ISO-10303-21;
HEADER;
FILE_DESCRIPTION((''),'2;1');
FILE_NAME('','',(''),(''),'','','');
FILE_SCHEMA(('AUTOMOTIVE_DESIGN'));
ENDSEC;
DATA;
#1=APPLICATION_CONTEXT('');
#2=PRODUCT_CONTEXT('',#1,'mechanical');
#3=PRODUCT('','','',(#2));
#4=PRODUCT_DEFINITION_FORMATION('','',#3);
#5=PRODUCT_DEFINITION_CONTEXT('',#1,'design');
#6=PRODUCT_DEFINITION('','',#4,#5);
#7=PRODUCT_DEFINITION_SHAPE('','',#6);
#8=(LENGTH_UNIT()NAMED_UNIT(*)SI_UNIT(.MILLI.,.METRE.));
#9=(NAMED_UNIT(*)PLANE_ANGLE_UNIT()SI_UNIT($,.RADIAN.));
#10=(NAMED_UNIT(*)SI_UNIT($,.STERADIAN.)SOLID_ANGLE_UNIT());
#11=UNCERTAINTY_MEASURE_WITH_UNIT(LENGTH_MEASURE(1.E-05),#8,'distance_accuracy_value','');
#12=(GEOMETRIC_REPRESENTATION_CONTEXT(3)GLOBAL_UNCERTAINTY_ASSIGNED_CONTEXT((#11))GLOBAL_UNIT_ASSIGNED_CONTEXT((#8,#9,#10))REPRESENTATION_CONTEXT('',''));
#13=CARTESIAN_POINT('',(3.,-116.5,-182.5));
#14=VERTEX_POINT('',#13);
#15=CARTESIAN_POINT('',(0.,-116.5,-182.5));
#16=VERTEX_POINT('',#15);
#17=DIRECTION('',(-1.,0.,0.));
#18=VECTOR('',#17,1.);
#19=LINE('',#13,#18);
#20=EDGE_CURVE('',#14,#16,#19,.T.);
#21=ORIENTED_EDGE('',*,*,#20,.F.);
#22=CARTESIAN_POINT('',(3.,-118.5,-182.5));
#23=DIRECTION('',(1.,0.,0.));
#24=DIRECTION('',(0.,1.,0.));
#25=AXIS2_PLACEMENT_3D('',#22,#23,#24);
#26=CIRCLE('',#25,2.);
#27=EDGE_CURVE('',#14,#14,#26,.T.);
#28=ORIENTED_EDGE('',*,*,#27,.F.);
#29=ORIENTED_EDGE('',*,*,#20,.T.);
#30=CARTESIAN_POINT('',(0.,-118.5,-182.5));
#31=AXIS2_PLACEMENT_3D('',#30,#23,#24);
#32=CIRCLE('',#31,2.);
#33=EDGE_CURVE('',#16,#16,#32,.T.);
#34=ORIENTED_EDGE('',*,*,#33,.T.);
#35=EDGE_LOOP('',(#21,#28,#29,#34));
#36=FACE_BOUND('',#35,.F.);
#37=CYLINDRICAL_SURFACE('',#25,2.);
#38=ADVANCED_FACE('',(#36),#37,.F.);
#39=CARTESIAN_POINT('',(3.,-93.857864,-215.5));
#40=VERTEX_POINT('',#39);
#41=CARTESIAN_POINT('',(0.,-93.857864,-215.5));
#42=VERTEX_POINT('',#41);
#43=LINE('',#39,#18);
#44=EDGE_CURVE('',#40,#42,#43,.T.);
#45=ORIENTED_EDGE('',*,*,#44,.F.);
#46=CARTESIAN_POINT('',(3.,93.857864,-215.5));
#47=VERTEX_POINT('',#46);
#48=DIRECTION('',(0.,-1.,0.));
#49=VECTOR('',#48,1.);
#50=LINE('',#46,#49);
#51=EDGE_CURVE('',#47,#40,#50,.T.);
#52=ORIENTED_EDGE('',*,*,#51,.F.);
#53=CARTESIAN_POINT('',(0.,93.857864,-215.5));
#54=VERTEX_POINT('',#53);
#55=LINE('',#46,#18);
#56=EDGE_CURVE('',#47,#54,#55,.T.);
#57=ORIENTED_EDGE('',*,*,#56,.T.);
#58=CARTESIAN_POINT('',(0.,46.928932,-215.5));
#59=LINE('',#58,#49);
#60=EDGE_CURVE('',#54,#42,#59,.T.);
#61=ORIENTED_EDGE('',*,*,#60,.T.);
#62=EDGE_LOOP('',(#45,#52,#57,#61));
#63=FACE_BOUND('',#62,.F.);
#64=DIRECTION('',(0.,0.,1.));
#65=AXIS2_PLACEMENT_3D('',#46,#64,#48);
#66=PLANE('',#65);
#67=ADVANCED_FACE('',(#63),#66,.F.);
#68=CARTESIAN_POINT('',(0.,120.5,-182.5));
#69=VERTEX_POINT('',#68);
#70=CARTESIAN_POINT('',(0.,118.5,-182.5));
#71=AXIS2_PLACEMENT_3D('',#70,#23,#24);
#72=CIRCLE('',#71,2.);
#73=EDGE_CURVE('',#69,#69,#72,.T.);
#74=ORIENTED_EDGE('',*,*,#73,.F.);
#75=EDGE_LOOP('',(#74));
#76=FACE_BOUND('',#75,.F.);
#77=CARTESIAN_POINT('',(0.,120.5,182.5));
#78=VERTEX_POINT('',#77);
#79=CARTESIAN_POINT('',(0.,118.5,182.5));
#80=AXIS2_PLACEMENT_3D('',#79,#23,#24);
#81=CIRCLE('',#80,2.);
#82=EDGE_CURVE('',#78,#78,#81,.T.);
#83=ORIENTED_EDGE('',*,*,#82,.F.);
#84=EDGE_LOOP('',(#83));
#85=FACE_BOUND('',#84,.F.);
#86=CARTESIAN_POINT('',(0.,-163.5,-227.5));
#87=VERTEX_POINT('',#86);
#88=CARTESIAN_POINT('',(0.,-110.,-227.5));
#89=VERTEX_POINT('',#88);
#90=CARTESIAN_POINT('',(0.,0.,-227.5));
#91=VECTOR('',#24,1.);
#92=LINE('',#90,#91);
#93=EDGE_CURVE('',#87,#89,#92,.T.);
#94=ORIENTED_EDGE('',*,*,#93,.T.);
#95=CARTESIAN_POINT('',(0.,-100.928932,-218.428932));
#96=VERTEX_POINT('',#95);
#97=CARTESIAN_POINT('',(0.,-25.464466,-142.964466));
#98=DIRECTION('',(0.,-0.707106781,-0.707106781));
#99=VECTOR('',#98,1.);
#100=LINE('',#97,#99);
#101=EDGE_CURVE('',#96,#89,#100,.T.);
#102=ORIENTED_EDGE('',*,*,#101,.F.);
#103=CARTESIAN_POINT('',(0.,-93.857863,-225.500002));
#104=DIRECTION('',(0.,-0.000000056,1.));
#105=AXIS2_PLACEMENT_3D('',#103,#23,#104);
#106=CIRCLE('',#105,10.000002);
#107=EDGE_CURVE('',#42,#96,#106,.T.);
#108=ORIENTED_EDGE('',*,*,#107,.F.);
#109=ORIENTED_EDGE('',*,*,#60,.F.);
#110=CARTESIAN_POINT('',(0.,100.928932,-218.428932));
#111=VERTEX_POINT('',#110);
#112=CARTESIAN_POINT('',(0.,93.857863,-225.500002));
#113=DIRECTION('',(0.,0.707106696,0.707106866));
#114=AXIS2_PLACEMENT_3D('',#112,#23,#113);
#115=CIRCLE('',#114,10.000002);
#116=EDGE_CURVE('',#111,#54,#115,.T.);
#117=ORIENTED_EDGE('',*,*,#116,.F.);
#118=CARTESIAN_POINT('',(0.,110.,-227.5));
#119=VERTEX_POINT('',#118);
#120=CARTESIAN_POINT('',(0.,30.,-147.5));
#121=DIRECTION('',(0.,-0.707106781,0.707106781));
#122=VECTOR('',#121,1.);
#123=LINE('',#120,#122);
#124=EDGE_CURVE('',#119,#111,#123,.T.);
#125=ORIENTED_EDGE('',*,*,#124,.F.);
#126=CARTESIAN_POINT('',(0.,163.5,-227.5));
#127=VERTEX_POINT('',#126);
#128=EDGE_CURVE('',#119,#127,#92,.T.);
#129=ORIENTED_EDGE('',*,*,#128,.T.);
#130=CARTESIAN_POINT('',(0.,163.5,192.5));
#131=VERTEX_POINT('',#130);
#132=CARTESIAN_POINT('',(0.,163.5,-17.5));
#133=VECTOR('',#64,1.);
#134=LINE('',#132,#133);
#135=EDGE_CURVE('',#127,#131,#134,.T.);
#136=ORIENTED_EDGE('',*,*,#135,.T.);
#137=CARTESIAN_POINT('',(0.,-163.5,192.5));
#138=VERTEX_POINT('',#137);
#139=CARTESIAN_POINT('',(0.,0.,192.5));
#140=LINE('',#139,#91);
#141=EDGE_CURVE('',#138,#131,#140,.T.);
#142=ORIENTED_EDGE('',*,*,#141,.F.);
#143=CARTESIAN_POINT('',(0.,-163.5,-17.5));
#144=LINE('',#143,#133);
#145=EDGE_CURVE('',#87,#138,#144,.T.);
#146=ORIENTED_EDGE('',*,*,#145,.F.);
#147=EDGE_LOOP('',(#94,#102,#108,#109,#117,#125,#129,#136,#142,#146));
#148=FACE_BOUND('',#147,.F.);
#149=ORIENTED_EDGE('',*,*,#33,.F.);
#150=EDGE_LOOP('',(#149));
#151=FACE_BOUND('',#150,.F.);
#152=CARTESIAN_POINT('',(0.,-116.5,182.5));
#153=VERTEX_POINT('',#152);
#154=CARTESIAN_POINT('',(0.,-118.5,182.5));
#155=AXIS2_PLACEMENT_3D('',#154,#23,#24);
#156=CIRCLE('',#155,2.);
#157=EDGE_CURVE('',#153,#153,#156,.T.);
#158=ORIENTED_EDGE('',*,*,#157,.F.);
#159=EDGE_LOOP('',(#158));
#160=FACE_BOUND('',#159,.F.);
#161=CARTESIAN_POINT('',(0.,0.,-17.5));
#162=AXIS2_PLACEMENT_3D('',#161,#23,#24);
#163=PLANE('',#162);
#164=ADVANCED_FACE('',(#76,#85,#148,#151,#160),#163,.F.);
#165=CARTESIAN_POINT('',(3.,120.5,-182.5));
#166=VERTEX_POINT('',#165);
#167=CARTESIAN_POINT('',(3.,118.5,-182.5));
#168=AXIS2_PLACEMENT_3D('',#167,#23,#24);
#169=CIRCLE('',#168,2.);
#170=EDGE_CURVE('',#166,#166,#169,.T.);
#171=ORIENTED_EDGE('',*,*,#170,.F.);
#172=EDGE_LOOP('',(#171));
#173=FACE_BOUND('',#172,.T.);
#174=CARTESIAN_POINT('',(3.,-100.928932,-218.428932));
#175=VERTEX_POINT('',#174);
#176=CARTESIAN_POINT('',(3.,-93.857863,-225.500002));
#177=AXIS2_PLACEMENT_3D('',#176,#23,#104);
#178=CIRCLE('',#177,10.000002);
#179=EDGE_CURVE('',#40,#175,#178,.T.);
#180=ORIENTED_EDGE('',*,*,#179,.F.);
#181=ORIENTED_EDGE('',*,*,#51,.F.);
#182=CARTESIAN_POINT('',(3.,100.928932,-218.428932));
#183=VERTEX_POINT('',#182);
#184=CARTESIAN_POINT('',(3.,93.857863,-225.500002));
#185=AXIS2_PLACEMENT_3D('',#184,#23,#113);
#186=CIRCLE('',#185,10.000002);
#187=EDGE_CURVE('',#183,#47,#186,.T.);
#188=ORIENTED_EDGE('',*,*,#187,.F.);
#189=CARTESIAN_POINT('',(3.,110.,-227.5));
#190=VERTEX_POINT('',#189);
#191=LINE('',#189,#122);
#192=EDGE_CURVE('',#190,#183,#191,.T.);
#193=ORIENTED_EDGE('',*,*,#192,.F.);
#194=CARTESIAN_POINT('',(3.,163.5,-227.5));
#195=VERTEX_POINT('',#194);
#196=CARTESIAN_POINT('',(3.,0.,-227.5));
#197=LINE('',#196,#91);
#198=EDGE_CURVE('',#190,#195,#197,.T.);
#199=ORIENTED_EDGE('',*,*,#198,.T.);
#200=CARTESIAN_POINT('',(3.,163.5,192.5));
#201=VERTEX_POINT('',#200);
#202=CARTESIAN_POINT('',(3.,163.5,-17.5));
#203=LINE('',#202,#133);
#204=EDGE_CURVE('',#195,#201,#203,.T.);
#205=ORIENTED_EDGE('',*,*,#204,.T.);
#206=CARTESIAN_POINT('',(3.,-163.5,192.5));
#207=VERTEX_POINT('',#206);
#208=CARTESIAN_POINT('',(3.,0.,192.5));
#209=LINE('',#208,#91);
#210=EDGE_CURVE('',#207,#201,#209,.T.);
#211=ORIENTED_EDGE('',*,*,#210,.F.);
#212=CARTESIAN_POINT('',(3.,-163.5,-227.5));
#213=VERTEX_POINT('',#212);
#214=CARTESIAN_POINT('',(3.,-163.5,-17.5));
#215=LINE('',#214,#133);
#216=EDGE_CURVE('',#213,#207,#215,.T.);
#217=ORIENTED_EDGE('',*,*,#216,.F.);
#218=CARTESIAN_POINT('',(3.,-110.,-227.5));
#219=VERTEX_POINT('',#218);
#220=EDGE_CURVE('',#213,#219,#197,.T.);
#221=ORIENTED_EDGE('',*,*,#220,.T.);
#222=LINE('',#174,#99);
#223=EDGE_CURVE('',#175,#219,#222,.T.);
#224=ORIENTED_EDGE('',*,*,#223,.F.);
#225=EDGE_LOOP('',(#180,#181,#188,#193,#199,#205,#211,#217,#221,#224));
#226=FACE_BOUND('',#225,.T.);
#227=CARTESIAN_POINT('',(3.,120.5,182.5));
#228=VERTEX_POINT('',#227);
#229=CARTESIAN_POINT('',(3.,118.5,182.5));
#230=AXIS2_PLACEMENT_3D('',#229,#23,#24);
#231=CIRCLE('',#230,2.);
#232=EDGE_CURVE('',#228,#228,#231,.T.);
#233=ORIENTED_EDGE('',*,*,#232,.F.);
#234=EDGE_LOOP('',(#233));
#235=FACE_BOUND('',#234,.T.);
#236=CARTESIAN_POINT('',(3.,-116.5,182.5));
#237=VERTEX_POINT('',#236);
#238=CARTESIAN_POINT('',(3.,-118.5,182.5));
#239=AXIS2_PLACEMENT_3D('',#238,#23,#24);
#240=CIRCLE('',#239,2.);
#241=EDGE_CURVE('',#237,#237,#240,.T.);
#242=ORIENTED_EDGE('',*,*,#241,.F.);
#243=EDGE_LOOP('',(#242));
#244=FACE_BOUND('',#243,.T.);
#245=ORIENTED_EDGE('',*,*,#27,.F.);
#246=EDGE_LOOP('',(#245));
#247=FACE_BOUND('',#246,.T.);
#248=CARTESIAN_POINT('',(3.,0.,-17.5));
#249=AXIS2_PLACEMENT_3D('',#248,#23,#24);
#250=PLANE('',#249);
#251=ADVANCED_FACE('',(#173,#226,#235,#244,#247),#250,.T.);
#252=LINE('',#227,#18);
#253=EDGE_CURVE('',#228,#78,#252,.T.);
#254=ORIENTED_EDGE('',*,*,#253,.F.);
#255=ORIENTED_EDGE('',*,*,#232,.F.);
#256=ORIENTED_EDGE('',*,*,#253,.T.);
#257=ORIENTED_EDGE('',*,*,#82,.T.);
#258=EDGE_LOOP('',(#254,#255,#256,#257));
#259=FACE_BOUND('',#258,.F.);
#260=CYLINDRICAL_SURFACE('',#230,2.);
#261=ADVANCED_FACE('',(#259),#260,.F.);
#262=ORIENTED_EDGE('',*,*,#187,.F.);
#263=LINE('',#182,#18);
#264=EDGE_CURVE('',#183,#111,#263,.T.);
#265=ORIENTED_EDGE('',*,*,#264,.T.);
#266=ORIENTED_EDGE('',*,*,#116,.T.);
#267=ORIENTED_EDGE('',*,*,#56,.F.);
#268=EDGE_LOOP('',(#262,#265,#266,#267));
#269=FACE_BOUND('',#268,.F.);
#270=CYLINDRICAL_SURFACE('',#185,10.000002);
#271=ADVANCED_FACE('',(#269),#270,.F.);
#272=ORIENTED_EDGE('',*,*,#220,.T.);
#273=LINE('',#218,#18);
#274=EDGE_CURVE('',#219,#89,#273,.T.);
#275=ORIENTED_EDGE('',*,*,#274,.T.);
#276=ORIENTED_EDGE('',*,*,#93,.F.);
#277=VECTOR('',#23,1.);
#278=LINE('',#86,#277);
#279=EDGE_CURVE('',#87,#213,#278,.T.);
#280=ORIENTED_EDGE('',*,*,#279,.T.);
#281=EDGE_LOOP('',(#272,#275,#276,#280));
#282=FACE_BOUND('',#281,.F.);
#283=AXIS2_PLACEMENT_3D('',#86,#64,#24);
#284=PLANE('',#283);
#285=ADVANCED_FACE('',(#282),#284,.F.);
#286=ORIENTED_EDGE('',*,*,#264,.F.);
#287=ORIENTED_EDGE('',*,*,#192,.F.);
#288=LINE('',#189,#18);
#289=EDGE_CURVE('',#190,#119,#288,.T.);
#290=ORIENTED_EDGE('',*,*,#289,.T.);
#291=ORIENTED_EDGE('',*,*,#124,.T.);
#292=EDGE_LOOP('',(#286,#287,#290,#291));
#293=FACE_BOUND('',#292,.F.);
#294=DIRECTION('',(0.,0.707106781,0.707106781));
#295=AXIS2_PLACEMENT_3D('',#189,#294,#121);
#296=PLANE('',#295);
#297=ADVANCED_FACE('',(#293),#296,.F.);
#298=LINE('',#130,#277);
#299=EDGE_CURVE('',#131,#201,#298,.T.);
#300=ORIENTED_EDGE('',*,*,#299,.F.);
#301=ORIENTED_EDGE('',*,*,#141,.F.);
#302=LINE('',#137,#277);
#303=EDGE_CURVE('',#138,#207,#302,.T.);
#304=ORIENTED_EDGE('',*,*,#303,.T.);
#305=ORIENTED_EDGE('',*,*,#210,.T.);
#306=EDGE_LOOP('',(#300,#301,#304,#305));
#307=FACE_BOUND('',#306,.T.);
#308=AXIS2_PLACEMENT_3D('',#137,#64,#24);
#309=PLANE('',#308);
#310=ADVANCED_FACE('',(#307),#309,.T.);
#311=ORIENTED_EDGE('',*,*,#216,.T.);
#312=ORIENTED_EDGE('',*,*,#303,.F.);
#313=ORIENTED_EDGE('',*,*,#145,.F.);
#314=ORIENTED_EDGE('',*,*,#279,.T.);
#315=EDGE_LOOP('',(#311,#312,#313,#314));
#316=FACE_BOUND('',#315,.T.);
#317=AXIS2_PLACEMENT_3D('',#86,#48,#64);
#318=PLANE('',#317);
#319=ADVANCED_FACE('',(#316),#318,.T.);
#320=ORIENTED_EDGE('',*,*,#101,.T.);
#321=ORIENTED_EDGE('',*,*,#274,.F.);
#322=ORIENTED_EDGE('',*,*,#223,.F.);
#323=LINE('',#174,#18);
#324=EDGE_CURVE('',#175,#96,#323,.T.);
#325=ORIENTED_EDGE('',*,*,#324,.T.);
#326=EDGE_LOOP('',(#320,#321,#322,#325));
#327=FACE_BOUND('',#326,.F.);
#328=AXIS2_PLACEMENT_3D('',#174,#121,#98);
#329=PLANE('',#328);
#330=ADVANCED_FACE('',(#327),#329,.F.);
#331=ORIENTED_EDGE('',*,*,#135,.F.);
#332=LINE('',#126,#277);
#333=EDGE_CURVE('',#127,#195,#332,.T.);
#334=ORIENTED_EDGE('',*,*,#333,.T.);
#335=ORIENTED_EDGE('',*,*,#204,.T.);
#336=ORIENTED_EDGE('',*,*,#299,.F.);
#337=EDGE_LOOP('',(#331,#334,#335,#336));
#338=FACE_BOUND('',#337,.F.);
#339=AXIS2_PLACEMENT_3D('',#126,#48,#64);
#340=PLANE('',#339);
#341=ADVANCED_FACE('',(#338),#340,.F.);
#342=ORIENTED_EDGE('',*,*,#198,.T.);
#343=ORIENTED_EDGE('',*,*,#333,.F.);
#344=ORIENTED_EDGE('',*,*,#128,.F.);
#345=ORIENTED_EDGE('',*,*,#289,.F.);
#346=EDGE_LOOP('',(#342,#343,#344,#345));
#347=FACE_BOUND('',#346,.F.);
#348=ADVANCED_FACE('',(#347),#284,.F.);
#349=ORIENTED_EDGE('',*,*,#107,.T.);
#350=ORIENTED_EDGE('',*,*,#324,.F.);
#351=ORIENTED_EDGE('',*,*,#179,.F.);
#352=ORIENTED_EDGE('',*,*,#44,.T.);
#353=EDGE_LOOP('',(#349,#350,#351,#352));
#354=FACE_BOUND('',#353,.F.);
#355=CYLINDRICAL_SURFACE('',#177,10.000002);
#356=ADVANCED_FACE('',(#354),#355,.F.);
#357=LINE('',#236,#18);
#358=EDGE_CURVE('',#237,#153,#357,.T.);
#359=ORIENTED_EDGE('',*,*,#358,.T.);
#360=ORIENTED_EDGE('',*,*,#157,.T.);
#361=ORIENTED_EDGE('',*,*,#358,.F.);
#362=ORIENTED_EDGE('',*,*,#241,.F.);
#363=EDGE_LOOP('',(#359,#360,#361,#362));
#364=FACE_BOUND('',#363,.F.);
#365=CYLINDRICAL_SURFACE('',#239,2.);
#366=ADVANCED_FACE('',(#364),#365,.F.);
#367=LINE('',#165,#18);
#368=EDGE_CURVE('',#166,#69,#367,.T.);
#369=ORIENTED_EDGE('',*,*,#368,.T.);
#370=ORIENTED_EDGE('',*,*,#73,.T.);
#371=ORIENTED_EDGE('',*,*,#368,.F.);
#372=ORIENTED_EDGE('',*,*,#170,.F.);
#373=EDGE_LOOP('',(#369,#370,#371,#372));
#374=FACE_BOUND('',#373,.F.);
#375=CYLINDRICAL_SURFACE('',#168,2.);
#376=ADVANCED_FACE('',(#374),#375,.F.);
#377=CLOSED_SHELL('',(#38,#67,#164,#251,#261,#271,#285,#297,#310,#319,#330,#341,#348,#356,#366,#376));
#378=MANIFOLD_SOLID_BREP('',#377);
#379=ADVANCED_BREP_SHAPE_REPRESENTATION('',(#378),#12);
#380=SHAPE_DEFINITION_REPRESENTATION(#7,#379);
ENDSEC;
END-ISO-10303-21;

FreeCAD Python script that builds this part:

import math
import FreeCAD as App
import Part
import Sketcher
from FreeCAD import Vector


def add_polygon(sketch, points):
    """Adds a closed chain of lines whose ends are joined by coincident constraints."""
    first, n = sketch.GeometryCount, len(points)
    for a, b in zip(points, points[1:] + points[:1]):
        sketch.addGeometry(Part.LineSegment(App.Vector(*a, 0), App.Vector(*b, 0)), False)
    for i in range(n):
        sketch.addConstraint(Sketcher.Constraint("Coincident", first + i, 2, first + (i + 1) % n, 1))

doc = App.newDocument("Part")
body = doc.addObject("PartDesign::Body", "Body")

sketch1 = body.newObject("Sketcher::SketchObject", "Sketch")
sketch1.AttachmentSupport = (doc.getObject("YZ_Plane"), [""])
sketch1.MapMode = "FlatFace"
add_polygon(sketch1, [(-164, 192), (-164, -228), (164, -228), (164, 192)])
sketch1.addConstraint([
    Sketcher.Constraint("Vertical", 0),
    Sketcher.Constraint("Horizontal", 1),
    Sketcher.Constraint("Vertical", 2),
    Sketcher.Constraint("Horizontal", 3),
    Sketcher.Constraint("DistanceX", 1, 1, 1, 2, 327.0),
    Sketcher.Constraint("DistanceY", 0, 2, 0, 1, 420.0),
    Sketcher.Constraint("DistanceX", 0, 2, -1, 1, 163.5),
    Sketcher.Constraint("DistanceY", 0, 2, -1, 1, 227.5),
])
pad1 = body.newObject("PartDesign::Pad", "Pad")
pad1.Profile = sketch1
pad1.Length = 3

sketch2 = body.newObject("Sketcher::SketchObject", "Sketch001")
sketch2.AttachmentSupport = (doc.getObject("YZ_Plane"), [""])
sketch2.MapMode = "FlatFace"
sketch2.AttachmentOffset = App.Placement(Vector(0, 0, 3), App.Rotation())
sketch2.addGeometry([
    Part.Circle(Vector(-118.5, 182.5, 0), Vector(0, 0, 1), 2),
    Part.Circle(Vector(118.5, 182.5, 0), Vector(0, 0, 1), 2),
    Part.Circle(Vector(-118.5, -182.5, 0), Vector(0, 0, 1), 2),
    Part.Circle(Vector(118.5, -182.5, 0), Vector(0, 0, 1), 2),
], False)
sketch2.addConstraint([
    Sketcher.Constraint("Equal", 0, 1),
    Sketcher.Constraint("Equal", 1, 2),
    Sketcher.Constraint("Equal", 2, 3),
    Sketcher.Constraint("Symmetric", 1, 3, 2, 3, -1, 1),
    Sketcher.Constraint("Symmetric", 0, 3, 3, 3, -1, 1),
    Sketcher.Constraint("Symmetric", 0, 3, 1, 3, -2),
    Sketcher.Constraint("Diameter", 0, 4.0),
    Sketcher.Constraint("DistanceX", 0, 3, 1, 3, 237.0),
    Sketcher.Constraint("DistanceY", 2, 3, 0, 3, 365.0),
])
pocket1 = body.newObject("PartDesign::Pocket", "Pocket")
pocket1.Profile = sketch2
pocket1.Type = "ThroughAll"

sketch3 = body.newObject("Sketcher::SketchObject", "Sketch002")
sketch3.AttachmentSupport = (doc.getObject("YZ_Plane"), [""])
sketch3.MapMode = "FlatFace"
sketch3.AttachmentOffset = App.Placement(Vector(0, 0, 3), App.Rotation())
sketch3.addGeometry([
    Part.LineSegment(Vector(-110, -228, 0), Vector(110, -228, 0)),
    Part.LineSegment(Vector(110, -228, 0), Vector(101, -218, 0)),
    Part.ArcOfCircle(Part.Circle(Vector(94, -226, 0), Vector(0, 0, 1), 10), math.radians(45), math.radians(90)),
    Part.LineSegment(Vector(94, -216, 0), Vector(-94, -216, 0)),
    Part.ArcOfCircle(Part.Circle(Vector(-94, -226, 0), Vector(0, 0, 1), 10), math.radians(90), math.radians(135)),
    Part.LineSegment(Vector(-101, -218, 0), Vector(-110, -228, 0)),
], False)
sketch3.addConstraint([
    Sketcher.Constraint("Coincident", 0, 2, 1, 1),
    Sketcher.Constraint("Tangent", 1, 2, 2, 1),
    Sketcher.Constraint("Tangent", 2, 2, 3, 1),
    Sketcher.Constraint("Tangent", 3, 2, 4, 1),
    Sketcher.Constraint("Tangent", 4, 2, 5, 1),
    Sketcher.Constraint("Coincident", 5, 2, 0, 1),
    Sketcher.Constraint("Horizontal", 0),
    Sketcher.Constraint("Horizontal", 3),
    Sketcher.Constraint("Equal", 2, 4),
    Sketcher.Constraint("Symmetric", 1, 2, 4, 2, -2),
    Sketcher.Constraint("Perpendicular", 1, 5),
    Sketcher.Constraint("DistanceX", 0, 1, 0, 2, 220.0),
    Sketcher.Constraint("DistanceY", 0, 2, 2, 2, 12.0),
    Sketcher.Constraint("DistanceY", 0, 2, -1, 1, 227.5),
    Sketcher.Constraint("Radius", 2, 10.000002),
])
pocket2 = body.newObject("PartDesign::Pocket", "Pocket001")
pocket2.Profile = sketch3
pocket2.Type = "ThroughAll"

doc.recompute()
